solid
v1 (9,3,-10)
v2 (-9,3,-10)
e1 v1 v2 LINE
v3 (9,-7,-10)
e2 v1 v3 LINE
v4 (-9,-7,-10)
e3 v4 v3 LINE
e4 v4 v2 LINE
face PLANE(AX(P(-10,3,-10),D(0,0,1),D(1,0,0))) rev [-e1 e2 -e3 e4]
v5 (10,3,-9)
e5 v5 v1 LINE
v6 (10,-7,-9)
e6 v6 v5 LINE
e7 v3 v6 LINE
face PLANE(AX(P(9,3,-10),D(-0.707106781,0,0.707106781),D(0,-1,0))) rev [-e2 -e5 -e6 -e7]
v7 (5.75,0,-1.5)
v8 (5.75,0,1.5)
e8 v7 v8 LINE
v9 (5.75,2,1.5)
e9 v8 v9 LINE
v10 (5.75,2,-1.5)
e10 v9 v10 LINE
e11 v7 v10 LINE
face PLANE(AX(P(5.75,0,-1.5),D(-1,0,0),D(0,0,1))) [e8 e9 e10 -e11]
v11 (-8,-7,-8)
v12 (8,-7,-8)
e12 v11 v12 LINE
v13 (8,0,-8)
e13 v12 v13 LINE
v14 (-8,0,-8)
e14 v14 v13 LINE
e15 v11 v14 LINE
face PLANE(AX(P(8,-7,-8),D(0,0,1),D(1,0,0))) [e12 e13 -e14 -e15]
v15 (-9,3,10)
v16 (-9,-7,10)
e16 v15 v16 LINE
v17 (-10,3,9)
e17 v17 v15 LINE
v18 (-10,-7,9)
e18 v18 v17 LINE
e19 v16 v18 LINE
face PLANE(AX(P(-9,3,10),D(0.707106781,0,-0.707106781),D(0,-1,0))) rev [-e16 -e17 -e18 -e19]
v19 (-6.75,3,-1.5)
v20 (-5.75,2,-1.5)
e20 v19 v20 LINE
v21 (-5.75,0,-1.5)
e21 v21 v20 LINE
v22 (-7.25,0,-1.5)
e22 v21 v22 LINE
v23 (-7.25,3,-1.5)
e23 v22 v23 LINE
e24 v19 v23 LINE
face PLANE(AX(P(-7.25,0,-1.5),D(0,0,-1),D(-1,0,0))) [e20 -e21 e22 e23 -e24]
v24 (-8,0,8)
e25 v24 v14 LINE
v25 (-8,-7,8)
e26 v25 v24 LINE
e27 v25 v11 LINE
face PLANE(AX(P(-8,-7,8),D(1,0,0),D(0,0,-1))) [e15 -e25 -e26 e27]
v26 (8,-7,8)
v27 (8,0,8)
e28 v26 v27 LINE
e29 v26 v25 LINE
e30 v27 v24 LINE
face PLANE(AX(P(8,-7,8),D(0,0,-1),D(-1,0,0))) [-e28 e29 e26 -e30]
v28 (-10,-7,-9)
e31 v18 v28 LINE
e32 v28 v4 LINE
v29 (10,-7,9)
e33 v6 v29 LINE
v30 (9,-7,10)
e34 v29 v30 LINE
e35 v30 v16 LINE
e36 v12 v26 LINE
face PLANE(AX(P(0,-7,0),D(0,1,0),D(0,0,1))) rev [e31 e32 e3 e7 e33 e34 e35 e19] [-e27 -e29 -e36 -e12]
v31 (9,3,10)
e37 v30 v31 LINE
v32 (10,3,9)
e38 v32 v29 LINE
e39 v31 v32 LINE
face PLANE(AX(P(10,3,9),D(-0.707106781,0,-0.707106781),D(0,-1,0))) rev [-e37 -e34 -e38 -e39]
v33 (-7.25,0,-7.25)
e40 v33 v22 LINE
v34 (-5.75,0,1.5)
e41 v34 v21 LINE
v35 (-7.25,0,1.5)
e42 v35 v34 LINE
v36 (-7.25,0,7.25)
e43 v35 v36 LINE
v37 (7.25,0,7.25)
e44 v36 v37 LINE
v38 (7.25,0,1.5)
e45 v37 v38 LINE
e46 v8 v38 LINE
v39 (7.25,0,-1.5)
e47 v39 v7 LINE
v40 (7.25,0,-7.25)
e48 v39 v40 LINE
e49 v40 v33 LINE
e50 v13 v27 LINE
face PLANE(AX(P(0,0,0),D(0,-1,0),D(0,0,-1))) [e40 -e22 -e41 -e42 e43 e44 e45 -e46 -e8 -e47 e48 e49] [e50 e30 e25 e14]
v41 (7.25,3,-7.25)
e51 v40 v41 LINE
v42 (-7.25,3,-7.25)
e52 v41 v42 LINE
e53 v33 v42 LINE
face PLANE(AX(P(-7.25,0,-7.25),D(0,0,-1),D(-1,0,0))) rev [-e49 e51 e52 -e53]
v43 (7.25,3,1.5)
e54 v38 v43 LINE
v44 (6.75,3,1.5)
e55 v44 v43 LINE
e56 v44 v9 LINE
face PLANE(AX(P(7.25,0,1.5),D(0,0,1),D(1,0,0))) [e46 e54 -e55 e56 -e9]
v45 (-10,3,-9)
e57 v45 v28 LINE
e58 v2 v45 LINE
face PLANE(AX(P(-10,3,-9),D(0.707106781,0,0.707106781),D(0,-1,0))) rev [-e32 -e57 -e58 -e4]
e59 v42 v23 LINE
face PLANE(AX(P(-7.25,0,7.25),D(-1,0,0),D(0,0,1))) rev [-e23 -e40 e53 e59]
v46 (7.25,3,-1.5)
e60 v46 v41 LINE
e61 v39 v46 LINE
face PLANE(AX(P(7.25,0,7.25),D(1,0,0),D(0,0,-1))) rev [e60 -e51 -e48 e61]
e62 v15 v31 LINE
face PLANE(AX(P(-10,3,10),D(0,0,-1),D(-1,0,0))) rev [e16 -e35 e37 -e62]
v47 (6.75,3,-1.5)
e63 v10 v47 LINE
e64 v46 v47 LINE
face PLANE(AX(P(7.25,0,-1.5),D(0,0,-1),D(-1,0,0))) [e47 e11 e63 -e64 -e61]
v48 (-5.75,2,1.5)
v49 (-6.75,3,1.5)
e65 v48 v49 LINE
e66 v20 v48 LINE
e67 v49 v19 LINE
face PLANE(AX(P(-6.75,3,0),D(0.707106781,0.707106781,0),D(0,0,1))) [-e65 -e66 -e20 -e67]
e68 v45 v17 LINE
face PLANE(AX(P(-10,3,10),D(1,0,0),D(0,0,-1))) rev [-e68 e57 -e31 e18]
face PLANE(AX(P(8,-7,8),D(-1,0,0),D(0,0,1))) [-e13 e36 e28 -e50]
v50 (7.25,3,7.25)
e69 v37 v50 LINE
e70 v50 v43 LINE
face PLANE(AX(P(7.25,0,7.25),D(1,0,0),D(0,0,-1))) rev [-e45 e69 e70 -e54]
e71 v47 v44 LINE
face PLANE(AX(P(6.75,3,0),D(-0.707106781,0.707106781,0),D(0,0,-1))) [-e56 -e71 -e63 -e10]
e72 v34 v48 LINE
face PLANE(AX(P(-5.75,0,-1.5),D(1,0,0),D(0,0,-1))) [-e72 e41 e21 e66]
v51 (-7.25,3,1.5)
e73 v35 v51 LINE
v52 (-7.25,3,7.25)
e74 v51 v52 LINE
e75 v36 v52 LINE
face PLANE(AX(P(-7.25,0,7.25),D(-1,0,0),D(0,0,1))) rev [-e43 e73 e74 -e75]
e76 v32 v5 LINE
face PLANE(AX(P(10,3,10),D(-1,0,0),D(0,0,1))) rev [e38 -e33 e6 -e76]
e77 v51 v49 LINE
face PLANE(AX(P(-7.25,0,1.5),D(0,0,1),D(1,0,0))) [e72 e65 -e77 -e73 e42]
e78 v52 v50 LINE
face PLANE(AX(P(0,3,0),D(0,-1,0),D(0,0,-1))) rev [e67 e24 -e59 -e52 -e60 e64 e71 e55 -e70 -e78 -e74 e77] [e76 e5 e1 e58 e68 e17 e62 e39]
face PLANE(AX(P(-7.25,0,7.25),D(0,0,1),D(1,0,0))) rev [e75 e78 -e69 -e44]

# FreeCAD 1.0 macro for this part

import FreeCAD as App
import Part
import Sketcher

V = App.Vector
Q = App.Units.Quantity


def edges_at(feature, points):
    """Names of the edges that pass closest to the given points."""
    edges = feature.Shape.Edges
    near = lambda p: min(range(len(edges)), key=lambda i: edges[i].distToShape(Part.Vertex(*p))[0])
    return sorted({f"Edge{near(p) + 1}" for p in points})

doc = App.newDocument("Part")
params = doc.addObject("Spreadsheet::Sheet", "Params")
for row, (alias, value) in enumerate([
    ("sketch1_width", "20 mm"),
    ("pad1_length", "3 mm"),
    ("sketch2_width", "14.5 mm"),
    ("pocket1_length", "3 mm"),
    ("sketch3_height", "3 mm"),
    ("sketch3_width", "1.5 mm"),
    ("pad2_length", "3 mm"),
    ("chamfer_size", "1 mm"),
    ("sketch4_width", "20 mm"),
    ("sketch4_width2", "16 mm"),
    ("pad3_length", "7 mm"),
    ("chamfer2_size", "1 mm"),
], start=1):
    params.set(f"A{row}", alias)
    params.set(f"B{row}", "=" + value)
    params.setAlias(f"B{row}", alias)

body = doc.addObject("PartDesign::Body", "Body")

sketch1 = body.newObject("Sketcher::SketchObject", "Sketch")
sketch1.AttachmentSupport = (doc.getObject("XZ_Plane"), [""])
sketch1.MapMode = "FlatFace"
sketch1.addGeometry(Part.LineSegment(V(-10, -10, 0), V(-10, 10, 0)), False)
sketch1.addGeometry(Part.LineSegment(V(-10, 10, 0), V(10, 10, 0)), False)
sketch1.addGeometry(Part.LineSegment(V(10, 10, 0), V(10, -10, 0)), False)
sketch1.addGeometry(Part.LineSegment(V(10, -10, 0), V(-10, -10, 0)), False)
sketch1.addConstraint(Sketcher.Constraint("Coincident", 0, 2, 1, 1))
sketch1.addConstraint(Sketcher.Constraint("Coincident", 1, 2, 2, 1))
sketch1.addConstraint(Sketcher.Constraint("Coincident", 2, 2, 3, 1))
sketch1.addConstraint(Sketcher.Constraint("Coincident", 3, 2, 0, 1))
sketch1.addConstraint(Sketcher.Constraint("Vertical", 0))
sketch1.addConstraint(Sketcher.Constraint("Horizontal", 1))
sketch1.addConstraint(Sketcher.Constraint("Vertical", 2))
sketch1.addConstraint(Sketcher.Constraint("Horizontal", 3))
sketch1.addConstraint(Sketcher.Constraint("Symmetric", 0, 2, 2, 2, -1, 1))
sketch1.addConstraint(Sketcher.Constraint("Equal", 3, 0))
sketch1.addConstraint(Sketcher.Constraint("DistanceX", 1, 1, 1, 2, Q("20 mm")))
sketch1.setExpression("Constraints[10]", "Params.sketch1_width")
pad1 = body.newObject("PartDesign::Pad", "Pad")
pad1.Profile = sketch1
pad1.setExpression("Length", "Params.pad1_length")
pad1.Reversed = True

sketch2 = body.newObject("Sketcher::SketchObject", "Sketch001")
sketch2.AttachmentSupport = (doc.getObject("XZ_Plane"), [""])
sketch2.MapMode = "FlatFace"
sketch2.AttachmentOffset = App.Placement(V(0, 0, -3), App.Rotation())
sketch2.addGeometry(Part.LineSegment(V(-7, -7, 0), V(-7, 7, 0)), False)
sketch2.addGeometry(Part.LineSegment(V(-7, 7, 0), V(7, 7, 0)), False)
sketch2.addGeometry(Part.LineSegment(V(7, 7, 0), V(7, -7, 0)), False)
sketch2.addGeometry(Part.LineSegment(V(7, -7, 0), V(-7, -7, 0)), False)
sketch2.addConstraint(Sketcher.Constraint("Coincident", 0, 2, 1, 1))
sketch2.addConstraint(Sketcher.Constraint("Coincident", 1, 2, 2, 1))
sketch2.addConstraint(Sketcher.Constraint("Coincident", 2, 2, 3, 1))
sketch2.addConstraint(Sketcher.Constraint("Coincident", 3, 2, 0, 1))
sketch2.addConstraint(Sketcher.Constraint("Vertical", 0))
sketch2.addConstraint(Sketcher.Constraint("Horizontal", 1))
sketch2.addConstraint(Sketcher.Constraint("Vertical", 2))
sketch2.addConstraint(Sketcher.Constraint("Horizontal", 3))
sketch2.addConstraint(Sketcher.Constraint("Symmetric", 0, 2, 2, 2, -1, 1))
sketch2.addConstraint(Sketcher.Constraint("Equal", 3, 0))
sketch2.addConstraint(Sketcher.Constraint("DistanceX", 1, 1, 1, 2, Q("14.5 mm")))
sketch2.setExpression("Constraints[10]", "Params.sketch2_width")
pocket1 = body.newObject("PartDesign::Pocket", "Pocket")
pocket1.Profile = sketch2
pocket1.setExpression("Length", "Params.pocket1_length")
pocket1.Reversed = True

sketch3 = body.newObject("Sketcher::SketchObject", "Sketch002")
sketch3.AttachmentSupport = (doc.getObject("XZ_Plane"), [""])
sketch3.MapMode = "FlatFace"
sketch3.AttachmentOffset = App.Placement(V(0, 0, -3), App.Rotation())
sketch3.addGeometry(Part.LineSegment(V(5.8, -1.5, 0), V(5.8, 1.5, 0)), False)
sketch3.addGeometry(Part.LineSegment(V(5.8, 1.5, 0), V(7.2, 1.5, 0)), False)
sketch3.addGeometry(Part.LineSegment(V(7.2, 1.5, 0), V(7.2, -1.5, 0)), False)
sketch3.addGeometry(Part.LineSegment(V(7.2, -1.5, 0), V(5.8, -1.5, 0)), False)
sketch3.addGeometry(Part.LineSegment(V(-7.2, -1.5, 0), V(-7.2, 1.5, 0)), False)
sketch3.addGeometry(Part.LineSegment(V(-7.2, 1.5, 0), V(-5.8, 1.5, 0)), False)
sketch3.addGeometry(Part.LineSegment(V(-5.8, 1.5, 0), V(-5.8, -1.5, 0)), False)
sketch3.addGeometry(Part.LineSegment(V(-5.8, -1.5, 0), V(-7.2, -1.5, 0)), False)
sketch3.addConstraint(Sketcher.Constraint("Coincident", 0, 2, 1, 1))
sketch3.addConstraint(Sketcher.Constraint("Coincident", 1, 2, 2, 1))
sketch3.addConstraint(Sketcher.Constraint("Coincident", 2, 2, 3, 1))
sketch3.addConstraint(Sketcher.Constraint("Coincident", 3, 2, 0, 1))
sketch3.addConstraint(Sketcher.Constraint("Coincident", 4, 2, 5, 1))
sketch3.addConstraint(Sketcher.Constraint("Coincident", 5, 2, 6, 1))
sketch3.addConstraint(Sketcher.Constraint("Coincident", 6, 2, 7, 1))
sketch3.addConstraint(Sketcher.Constraint("Coincident", 7, 2, 4, 1))
sketch3.addConstraint(Sketcher.Constraint("Vertical", 0))
sketch3.addConstraint(Sketcher.Constraint("Horizontal", 1))
sketch3.addConstraint(Sketcher.Constraint("Vertical", 2))
sketch3.addConstraint(Sketcher.Constraint("Horizontal", 3))
sketch3.addConstraint(Sketcher.Constraint("Vertical", 4))
sketch3.addConstraint(Sketcher.Constraint("Horizontal", 5))
sketch3.addConstraint(Sketcher.Constraint("Vertical", 6))
sketch3.addConstraint(Sketcher.Constraint("Horizontal", 7))
sketch3.addConstraint(Sketcher.Constraint("Symmetric", 2, 2, 4, 2, -1, 1))
sketch3.addConstraint(Sketcher.Constraint("Symmetric", 0, 2, 6, 2, -1, 1))
sketch3.addConstraint(Sketcher.Constraint("Horizontal", 1, 2, 4, 2))
sketch3.addConstraint(Sketcher.Constraint("DistanceY", 0, 1, 0, 2, Q("3 mm")))
sketch3.addConstraint(Sketcher.Constraint("DistanceX", 1, 1, 1, 2, Q("1.5 mm")))
sketch3.addConstraint(Sketcher.Constraint("DistanceX", 4, 2, 0, 2, Q("13 mm")))
sketch3.setExpression("Constraints[19]", "Params.sketch3_height")
sketch3.setExpression("Constraints[20]", "Params.sketch3_width")
pad2 = body.newObject("PartDesign::Pad", "Pad001")
pad2.Profile = sketch3
pad2.setExpression("Length", "Params.pad2_length")
doc.recompute()

chamfer = body.newObject("PartDesign::Chamfer", "Chamfer")
chamfer.Base = (pad2, edges_at(pad2, [(5.75, 3, 0), (-5.75, 3, 0)]))
chamfer.setExpression("Size", "Params.chamfer_size")

sketch4 = body.newObject("Sketcher::SketchObject", "Sketch003")
sketch4.AttachmentSupport = (doc.getObject("XZ_Plane"), [""])
sketch4.MapMode = "FlatFace"
sketch4.addGeometry(Part.LineSegment(V(-10, 10, 0), V(-10, -10, 0)), False)
sketch4.addGeometry(Part.LineSegment(V(-10, -10, 0), V(10, -10, 0)), False)
sketch4.addGeometry(Part.LineSegment(V(10, -10, 0), V(10, 10, 0)), False)
sketch4.addGeometry(Part.LineSegment(V(10, 10, 0), V(-10, 10, 0)), False)
sketch4.addGeometry(Part.LineSegment(V(8, -8, 0), V(-8, -8, 0)), False)
sketch4.addGeometry(Part.LineSegment(V(-8, -8, 0), V(-8, 8, 0)), False)
sketch4.addGeometry(Part.LineSegment(V(-8, 8, 0), V(8, 8, 0)), False)
sketch4.addGeometry(Part.LineSegment(V(8, 8, 0), V(8, -8, 0)), False)
sketch4.addConstraint(Sketcher.Constraint("Coincident", 0, 2, 1, 1))
sketch4.addConstraint(Sketcher.Constraint("Coincident", 1, 2, 2, 1))
sketch4.addConstraint(Sketcher.Constraint("Coincident", 2, 2, 3, 1))
sketch4.addConstraint(Sketcher.Constraint("Coincident", 3, 2, 0, 1))
sketch4.addConstraint(Sketcher.Constraint("Coincident", 4, 2, 5, 1))
sketch4.addConstraint(Sketcher.Constraint("Coincident", 5, 2, 6, 1))
sketch4.addConstraint(Sketcher.Constraint("Coincident", 6, 2, 7, 1))
sketch4.addConstraint(Sketcher.Constraint("Coincident", 7, 2, 4, 1))
sketch4.addConstraint(Sketcher.Constraint("Vertical", 0))
sketch4.addConstraint(Sketcher.Constraint("Horizontal", 1))
sketch4.addConstraint(Sketcher.Constraint("Vertical", 2))
sketch4.addConstraint(Sketcher.Constraint("Horizontal", 3))
sketch4.addConstraint(Sketcher.Constraint("Horizontal", 4))
sketch4.addConstraint(Sketcher.Constraint("Vertical", 5))
sketch4.addConstraint(Sketcher.Constraint("Horizontal", 6))
sketch4.addConstraint(Sketcher.Constraint("Vertical", 7))
sketch4.addConstraint(Sketcher.Constraint("Symmetric", 0, 2, 2, 2, -1, 1))
sketch4.addConstraint(Sketcher.Constraint("Symmetric", 4, 2, 6, 2, -1, 1))
sketch4.addConstraint(Sketcher.Constraint("Equal", 3, 0))
sketch4.addConstraint(Sketcher.Constraint("Equal", 6, 5))
sketch4.addConstraint(Sketcher.Constraint("DistanceX", 1, 1, 1, 2, Q("20 mm")))
sketch4.addConstraint(Sketcher.Constraint("DistanceX", 4, 2, 4, 1, Q("16 mm")))
sketch4.setExpression("Constraints[20]", "Params.sketch4_width")
sketch4.setExpression("Constraints[21]", "Params.sketch4_width2")
pad3 = body.newObject("PartDesign::Pad", "Pad002")
pad3.Profile = sketch4
pad3.setExpression("Length", "Params.pad3_length")
doc.recompute()

chamfer2 = body.newObject("PartDesign::Chamfer", "Chamfer001")
chamfer2.Base = (pad3, edges_at(pad3, [
    (10, -2, 10),
    (-10, -2, 10),
    (-10, -2, -10),
    (10, -2, -10),
]))
chamfer2.setExpression("Size", "Params.chamfer2_size")

doc.recompute()
